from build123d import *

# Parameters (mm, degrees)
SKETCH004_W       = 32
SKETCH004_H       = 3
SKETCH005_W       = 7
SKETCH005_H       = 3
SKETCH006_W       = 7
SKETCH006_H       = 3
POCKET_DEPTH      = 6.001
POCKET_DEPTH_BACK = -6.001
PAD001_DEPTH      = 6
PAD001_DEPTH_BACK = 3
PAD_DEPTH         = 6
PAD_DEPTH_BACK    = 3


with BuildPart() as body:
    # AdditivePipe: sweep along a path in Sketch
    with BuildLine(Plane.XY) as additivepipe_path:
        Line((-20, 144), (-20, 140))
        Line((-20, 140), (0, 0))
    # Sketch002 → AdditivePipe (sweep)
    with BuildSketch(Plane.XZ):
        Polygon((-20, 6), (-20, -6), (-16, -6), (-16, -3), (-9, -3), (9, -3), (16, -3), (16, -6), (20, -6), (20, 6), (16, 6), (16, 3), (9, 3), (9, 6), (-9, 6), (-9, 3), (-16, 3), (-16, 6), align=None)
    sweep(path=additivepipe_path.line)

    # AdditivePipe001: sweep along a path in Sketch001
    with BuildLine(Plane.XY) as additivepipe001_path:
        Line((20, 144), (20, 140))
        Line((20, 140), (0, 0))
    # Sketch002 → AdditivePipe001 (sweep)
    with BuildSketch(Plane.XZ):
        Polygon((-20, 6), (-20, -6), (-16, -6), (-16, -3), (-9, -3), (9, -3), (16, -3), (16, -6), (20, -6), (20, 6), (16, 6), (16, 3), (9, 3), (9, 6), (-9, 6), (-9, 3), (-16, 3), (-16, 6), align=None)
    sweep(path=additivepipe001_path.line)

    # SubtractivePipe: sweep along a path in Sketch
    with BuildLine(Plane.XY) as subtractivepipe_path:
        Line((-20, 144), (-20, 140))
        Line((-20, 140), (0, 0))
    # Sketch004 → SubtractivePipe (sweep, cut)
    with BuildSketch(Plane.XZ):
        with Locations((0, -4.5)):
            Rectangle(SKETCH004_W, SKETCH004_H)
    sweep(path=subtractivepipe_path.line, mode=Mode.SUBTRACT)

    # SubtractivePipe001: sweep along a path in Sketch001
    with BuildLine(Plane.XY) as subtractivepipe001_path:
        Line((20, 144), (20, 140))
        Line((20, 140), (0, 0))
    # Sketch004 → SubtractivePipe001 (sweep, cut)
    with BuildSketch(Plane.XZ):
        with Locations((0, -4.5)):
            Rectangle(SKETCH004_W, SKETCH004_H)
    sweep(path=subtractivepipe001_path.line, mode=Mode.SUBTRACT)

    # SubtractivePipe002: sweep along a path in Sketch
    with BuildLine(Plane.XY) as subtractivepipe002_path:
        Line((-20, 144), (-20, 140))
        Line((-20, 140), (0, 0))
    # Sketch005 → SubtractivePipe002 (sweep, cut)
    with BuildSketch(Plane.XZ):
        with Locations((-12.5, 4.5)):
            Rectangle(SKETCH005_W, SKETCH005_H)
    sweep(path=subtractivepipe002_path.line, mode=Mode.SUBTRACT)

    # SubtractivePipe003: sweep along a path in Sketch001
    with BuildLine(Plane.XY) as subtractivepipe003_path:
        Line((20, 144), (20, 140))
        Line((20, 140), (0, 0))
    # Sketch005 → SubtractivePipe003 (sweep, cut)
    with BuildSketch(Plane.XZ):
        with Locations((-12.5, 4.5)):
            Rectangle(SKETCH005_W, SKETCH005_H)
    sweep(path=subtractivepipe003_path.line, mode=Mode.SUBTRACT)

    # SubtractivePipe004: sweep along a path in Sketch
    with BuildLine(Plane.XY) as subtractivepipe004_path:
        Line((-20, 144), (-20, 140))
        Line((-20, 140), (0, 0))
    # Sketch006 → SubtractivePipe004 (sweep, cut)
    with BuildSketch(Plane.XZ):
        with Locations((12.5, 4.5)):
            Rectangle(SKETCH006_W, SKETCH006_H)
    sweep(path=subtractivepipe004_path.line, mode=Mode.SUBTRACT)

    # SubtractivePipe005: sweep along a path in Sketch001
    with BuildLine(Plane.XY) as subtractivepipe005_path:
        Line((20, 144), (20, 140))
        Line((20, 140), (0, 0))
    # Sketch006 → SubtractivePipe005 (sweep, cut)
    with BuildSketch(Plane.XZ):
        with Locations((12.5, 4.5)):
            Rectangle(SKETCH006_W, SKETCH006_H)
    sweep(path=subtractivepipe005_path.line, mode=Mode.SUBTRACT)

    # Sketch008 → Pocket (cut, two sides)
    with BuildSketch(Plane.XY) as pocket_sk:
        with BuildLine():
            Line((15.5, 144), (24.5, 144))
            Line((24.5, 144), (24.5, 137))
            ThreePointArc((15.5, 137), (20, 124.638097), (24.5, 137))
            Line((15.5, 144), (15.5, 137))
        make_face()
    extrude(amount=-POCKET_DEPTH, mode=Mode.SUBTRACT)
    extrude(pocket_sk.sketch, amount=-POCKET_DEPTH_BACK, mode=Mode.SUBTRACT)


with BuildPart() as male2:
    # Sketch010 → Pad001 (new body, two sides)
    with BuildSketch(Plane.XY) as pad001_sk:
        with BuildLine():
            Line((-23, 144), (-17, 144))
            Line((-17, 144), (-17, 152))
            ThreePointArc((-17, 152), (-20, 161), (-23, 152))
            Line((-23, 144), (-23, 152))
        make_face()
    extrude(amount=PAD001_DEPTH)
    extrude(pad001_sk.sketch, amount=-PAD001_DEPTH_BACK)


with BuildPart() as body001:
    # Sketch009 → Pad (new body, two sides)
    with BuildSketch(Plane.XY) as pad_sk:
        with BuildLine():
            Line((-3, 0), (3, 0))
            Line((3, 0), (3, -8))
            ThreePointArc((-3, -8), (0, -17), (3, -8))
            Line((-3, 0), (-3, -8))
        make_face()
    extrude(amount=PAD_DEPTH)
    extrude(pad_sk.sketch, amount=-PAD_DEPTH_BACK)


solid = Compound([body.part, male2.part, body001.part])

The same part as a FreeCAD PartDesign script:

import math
import FreeCAD as App
import Part
import Sketcher
Q = App.Units.Quantity


def add_polygon(sketch, points):
    """Adds a closed chain of lines whose ends are joined by coincident constraints."""
    first, n = sketch.GeometryCount, len(points)
    for a, b in zip(points, points[1:] + points[:1]):
        sketch.addGeometry(Part.LineSegment(App.Vector(*a, 0), App.Vector(*b, 0)), False)
    for i in range(n):
        sketch.addConstraint(Sketcher.Constraint("Coincident", first + i, 2, first + (i + 1) % n, 1))

doc = App.newDocument("Part")
body = doc.addObject("PartDesign::Body", "Body")

sketch1 = body.newObject("Sketcher::SketchObject", "Sketch")
sketch1.AttachmentSupport = (doc.getObject("XZ_Plane"), [""])
sketch1.MapMode = "FlatFace"
add_polygon(sketch1, [(-20, 6), (-20, -6), (-16, -6), (-16, -3), (16, -3), (16, -6), (20, -6), (20, 6), (16, 6), (16, 3), (9, 3), (9, 6), (-9, 6), (-9, 3), (-16, 3), (-16, 6)])
sketch1.addConstraint(Sketcher.Constraint("Vertical", 0))
sketch1.addConstraint(Sketcher.Constraint("Horizontal", 1))
sketch1.addConstraint(Sketcher.Constraint("Vertical", 2))
sketch1.addConstraint(Sketcher.Constraint("Horizontal", 3))
sketch1.addConstraint(Sketcher.Constraint("Vertical", 4))
sketch1.addConstraint(Sketcher.Constraint("Horizontal", 5))
sketch1.addConstraint(Sketcher.Constraint("Vertical", 6))
sketch1.addConstraint(Sketcher.Constraint("Horizontal", 7))
sketch1.addConstraint(Sketcher.Constraint("Vertical", 8))
sketch1.addConstraint(Sketcher.Constraint("Horizontal", 9))
sketch1.addConstraint(Sketcher.Constraint("Vertical", 10))
sketch1.addConstraint(Sketcher.Constraint("Horizontal", 11))
sketch1.addConstraint(Sketcher.Constraint("Vertical", 12))
sketch1.addConstraint(Sketcher.Constraint("Horizontal", 13))
sketch1.addConstraint(Sketcher.Constraint("Vertical", 14))
sketch1.addConstraint(Sketcher.Constraint("Horizontal", 15))
sketch1.addConstraint(Sketcher.Constraint("Symmetric", 0, 2, 6, 2, -1, 1))
sketch1.addConstraint(Sketcher.Constraint("Symmetric", 2, 2, 8, 2, -1, 1))
sketch1.addConstraint(Sketcher.Constraint("Symmetric", 3, 2, 13, 2, -1, 1))
sketch1.addConstraint(Sketcher.Constraint("Symmetric", 1, 2, 4, 2, -2))
sketch1.addConstraint(Sketcher.Constraint("Horizontal", 7, 2, 10, 2))
sketch1.addConstraint(Sketcher.Constraint("Horizontal", 11, 2, 14, 2))
sketch1.addConstraint(Sketcher.Constraint("Equal", 9, 13))
sketch1.addConstraint(Sketcher.Constraint("DistanceX", 1, 1, 1, 2, Q("4 mm")))
sketch1.addConstraint(Sketcher.Constraint("DistanceX", 3, 1, 3, 2, Q("32 mm")))
sketch1.addConstraint(Sketcher.Constraint("DistanceX", 9, 2, 9, 1, Q("7 mm")))
sketch1.addConstraint(Sketcher.Constraint("DistanceY", 0, 2, 0, 1, Q("12 mm")))
sketch1.addConstraint(Sketcher.Constraint("DistanceY", 2, 1, 2, 2, Q("3 mm")))

sketch2 = body.newObject("Sketcher::SketchObject", "Sketch001")
sketch2.AttachmentSupport = (doc.getObject("XY_Plane"), [""])
sketch2.MapMode = "FlatFace"
sketch2.addGeometry(Part.LineSegment(App.Vector(-20, 144, 0), App.Vector(-20, 140, 0)), False)
sketch2.addGeometry(Part.LineSegment(App.Vector(-20, 140, 0), App.Vector(0, 0, 0)), False)
sketch2.addConstraint(Sketcher.Constraint("Coincident", 0, 2, 1, 1))
sketch2.addConstraint(Sketcher.Constraint("Vertical", 0))
sketch2.addConstraint(Sketcher.Constraint("Coincident", 1, 2, -1, 1))
sketch2.addConstraint(Sketcher.Constraint("DistanceY", 0, 2, 0, 1, Q("4 mm")))
sketch2.addConstraint(Sketcher.Constraint("DistanceX", 0, 1, -1, 1, Q("20 mm")))
sketch2.addConstraint(Sketcher.Constraint("DistanceY", -1, 1, 0, 1, Q("144 mm")))
doc.recompute()

additivepipe = body.newObject("PartDesign::AdditivePipe", "AdditivePipe")
additivepipe.Profile = sketch1
additivepipe.Spine = (sketch2, ["Edge1", "Edge2"])

sketch3 = body.newObject("Sketcher::SketchObject", "Sketch002")
sketch3.AttachmentSupport = (doc.getObject("XZ_Plane"), [""])
sketch3.MapMode = "FlatFace"
add_polygon(sketch3, [(-20, 6), (-20, -6), (-16, -6), (-16, -3), (16, -3), (16, -6), (20, -6), (20, 6), (16, 6), (16, 3), (9, 3), (9, 6), (-9, 6), (-9, 3), (-16, 3), (-16, 6)])
sketch3.addConstraint(Sketcher.Constraint("Vertical", 0))
sketch3.addConstraint(Sketcher.Constraint("Horizontal", 1))
sketch3.addConstraint(Sketcher.Constraint("Vertical", 2))
sketch3.addConstraint(Sketcher.Constraint("Horizontal", 3))
sketch3.addConstraint(Sketcher.Constraint("Vertical", 4))
sketch3.addConstraint(Sketcher.Constraint("Horizontal", 5))
sketch3.addConstraint(Sketcher.Constraint("Vertical", 6))
sketch3.addConstraint(Sketcher.Constraint("Horizontal", 7))
sketch3.addConstraint(Sketcher.Constraint("Vertical", 8))
sketch3.addConstraint(Sketcher.Constraint("Horizontal", 9))
sketch3.addConstraint(Sketcher.Constraint("Vertical", 10))
sketch3.addConstraint(Sketcher.Constraint("Horizontal", 11))
sketch3.addConstraint(Sketcher.Constraint("Vertical", 12))
sketch3.addConstraint(Sketcher.Constraint("Horizontal", 13))
sketch3.addConstraint(Sketcher.Constraint("Vertical", 14))
sketch3.addConstraint(Sketcher.Constraint("Horizontal", 15))
sketch3.addConstraint(Sketcher.Constraint("Symmetric", 0, 2, 6, 2, -1, 1))
sketch3.addConstraint(Sketcher.Constraint("Symmetric", 2, 2, 8, 2, -1, 1))
sketch3.addConstraint(Sketcher.Constraint("Symmetric", 3, 2, 13, 2, -1, 1))
sketch3.addConstraint(Sketcher.Constraint("Symmetric", 1, 2, 4, 2, -2))
sketch3.addConstraint(Sketcher.Constraint("Horizontal", 7, 2, 10, 2))
sketch3.addConstraint(Sketcher.Constraint("Horizontal", 11, 2, 14, 2))
sketch3.addConstraint(Sketcher.Constraint("Equal", 9, 13))
sketch3.addConstraint(Sketcher.Constraint("DistanceX", 1, 1, 1, 2, Q("4 mm")))
sketch3.addConstraint(Sketcher.Constraint("DistanceX", 3, 1, 3, 2, Q("32 mm")))
sketch3.addConstraint(Sketcher.Constraint("DistanceX", 9, 2, 9, 1, Q("7 mm")))
sketch3.addConstraint(Sketcher.Constraint("DistanceY", 0, 2, 0, 1, Q("12 mm")))
sketch3.addConstraint(Sketcher.Constraint("DistanceY", 2, 1, 2, 2, Q("3 mm")))

sketch4 = body.newObject("Sketcher::SketchObject", "Sketch003")
sketch4.AttachmentSupport = (doc.getObject("XY_Plane"), [""])
sketch4.MapMode = "FlatFace"
sketch4.addGeometry(Part.LineSegment(App.Vector(20, 144, 0), App.Vector(20, 140, 0)), False)
sketch4.addGeometry(Part.LineSegment(App.Vector(20, 140, 0), App.Vector(0, 0, 0)), False)
sketch4.addConstraint(Sketcher.Constraint("Coincident", 0, 2, 1, 1))
sketch4.addConstraint(Sketcher.Constraint("Vertical", 0))
sketch4.addConstraint(Sketcher.Constraint("Coincident", 1, 2, -1, 1))
sketch4.addConstraint(Sketcher.Constraint("DistanceY", 0, 2, 0, 1, Q("4 mm")))
sketch4.addConstraint(Sketcher.Constraint("DistanceX", -1, 1, 0, 1, Q("20 mm")))
sketch4.addConstraint(Sketcher.Constraint("DistanceY", -1, 1, 0, 1, Q("144 mm")))
doc.recompute()

additivepipe2 = body.newObject("PartDesign::AdditivePipe", "AdditivePipe001")
additivepipe2.Profile = sketch3
additivepipe2.Spine = (sketch4, ["Edge1", "Edge2"])

sketch5 = body.newObject("Sketcher::SketchObject", "Sketch004")
sketch5.AttachmentSupport = (doc.getObject("XZ_Plane"), [""])
sketch5.MapMode = "FlatFace"
add_polygon(sketch5, [(-16, -3), (-16, -6), (16, -6), (16, -3)])
sketch5.addConstraint(Sketcher.Constraint("Vertical", 0))
sketch5.addConstraint(Sketcher.Constraint("Horizontal", 1))
sketch5.addConstraint(Sketcher.Constraint("Vertical", 2))
sketch5.addConstraint(Sketcher.Constraint("Horizontal", 3))
sketch5.addConstraint(Sketcher.Constraint("DistanceX", 1, 1, 1, 2, Q("32 mm")))
sketch5.addConstraint(Sketcher.Constraint("DistanceY", 0, 2, 0, 1, Q("3 mm")))
sketch5.addConstraint(Sketcher.Constraint("DistanceX", 0, 2, -1, 1, Q("16 mm")))
sketch5.addConstraint(Sketcher.Constraint("DistanceY", 0, 2, -1, 1, Q("6 mm")))

sketch6 = body.newObject("Sketcher::SketchObject", "Sketch005")
sketch6.AttachmentSupport = (doc.getObject("XY_Plane"), [""])
sketch6.MapMode = "FlatFace"
sketch6.addGeometry(Part.LineSegment(App.Vector(-20, 144, 0), App.Vector(-20, 140, 0)), False)
sketch6.addGeometry(Part.LineSegment(App.Vector(-20, 140, 0), App.Vector(0, 0, 0)), False)
sketch6.addConstraint(Sketcher.Constraint("Coincident", 0, 2, 1, 1))
sketch6.addConstraint(Sketcher.Constraint("Vertical", 0))
sketch6.addConstraint(Sketcher.Constraint("Coincident", 1, 2, -1, 1))
sketch6.addConstraint(Sketcher.Constraint("DistanceY", 0, 2, 0, 1, Q("4 mm")))
sketch6.addConstraint(Sketcher.Constraint("DistanceX", 0, 1, -1, 1, Q("20 mm")))
sketch6.addConstraint(Sketcher.Constraint("DistanceY", -1, 1, 0, 1, Q("144 mm")))
doc.recompute()

subtractivepipe = body.newObject("PartDesign::SubtractivePipe", "SubtractivePipe")
subtractivepipe.Profile = sketch5
subtractivepipe.Spine = (sketch6, ["Edge1", "Edge2"])

sketch7 = body.newObject("Sketcher::SketchObject", "Sketch006")
sketch7.AttachmentSupport = (doc.getObject("XZ_Plane"), [""])
sketch7.MapMode = "FlatFace"
add_polygon(sketch7, [(-16, -3), (-16, -6), (16, -6), (16, -3)])
sketch7.addConstraint(Sketcher.Constraint("Vertical", 0))
sketch7.addConstraint(Sketcher.Constraint("Horizontal", 1))
sketch7.addConstraint(Sketcher.Constraint("Vertical", 2))
sketch7.addConstraint(Sketcher.Constraint("Horizontal", 3))
sketch7.addConstraint(Sketcher.Constraint("DistanceX", 1, 1, 1, 2, Q("32 mm")))
sketch7.addConstraint(Sketcher.Constraint("DistanceY", 0, 2, 0, 1, Q("3 mm")))
sketch7.addConstraint(Sketcher.Constraint("DistanceX", 0, 2, -1, 1, Q("16 mm")))
sketch7.addConstraint(Sketcher.Constraint("DistanceY", 0, 2, -1, 1, Q("6 mm")))

sketch8 = body.newObject("Sketcher::SketchObject", "Sketch007")
sketch8.AttachmentSupport = (doc.getObject("XY_Plane"), [""])
sketch8.MapMode = "FlatFace"
sketch8.addGeometry(Part.LineSegment(App.Vector(20, 144, 0), App.Vector(20, 140, 0)), False)
sketch8.addGeometry(Part.LineSegment(App.Vector(20, 140, 0), App.Vector(0, 0, 0)), False)
sketch8.addConstraint(Sketcher.Constraint("Coincident", 0, 2, 1, 1))
sketch8.addConstraint(Sketcher.Constraint("Vertical", 0))
sketch8.addConstraint(Sketcher.Constraint("Coincident", 1, 2, -1, 1))
sketch8.addConstraint(Sketcher.Constraint("DistanceY", 0, 2, 0, 1, Q("4 mm")))
sketch8.addConstraint(Sketcher.Constraint("DistanceX", -1, 1, 0, 1, Q("20 mm")))
sketch8.addConstraint(Sketcher.Constraint("DistanceY", -1, 1, 0, 1, Q("144 mm")))
doc.recompute()

subtractivepipe2 = body.newObject("PartDesign::SubtractivePipe", "SubtractivePipe001")
subtractivepipe2.Profile = sketch7
subtractivepipe2.Spine = (sketch8, ["Edge1", "Edge2"])

sketch9 = body.newObject("Sketcher::SketchObject", "Sketch008")
sketch9.AttachmentSupport = (doc.getObject("XZ_Plane"), [""])
sketch9.MapMode = "FlatFace"
add_polygon(sketch9, [(-16, 6), (-16, 3), (-9, 3), (-9, 6)])
sketch9.addConstraint(Sketcher.Constraint("Vertical", 0))
sketch9.addConstraint(Sketcher.Constraint("Horizontal", 1))
sketch9.addConstraint(Sketcher.Constraint("Vertical", 2))
sketch9.addConstraint(Sketcher.Constraint("Horizontal", 3))
sketch9.addConstraint(Sketcher.Constraint("DistanceX", 1, 1, 1, 2, Q("7 mm")))
sketch9.addConstraint(Sketcher.Constraint("DistanceY", 0, 2, 0, 1, Q("3 mm")))
sketch9.addConstraint(Sketcher.Constraint("DistanceX", 0, 2, -1, 1, Q("16 mm")))
sketch9.addConstraint(Sketcher.Constraint("DistanceY", -1, 1, 0, 2, Q("3 mm")))

sketch10 = body.newObject("Sketcher::SketchObject", "Sketch009")
sketch10.AttachmentSupport = (doc.getObject("XY_Plane"), [""])
sketch10.MapMode = "FlatFace"
sketch10.addGeometry(Part.LineSegment(App.Vector(-20, 144, 0), App.Vector(-20, 140, 0)), False)
sketch10.addGeometry(Part.LineSegment(App.Vector(-20, 140, 0), App.Vector(0, 0, 0)), False)
sketch10.addConstraint(Sketcher.Constraint("Coincident", 0, 2, 1, 1))
sketch10.addConstraint(Sketcher.Constraint("Vertical", 0))
sketch10.addConstraint(Sketcher.Constraint("Coincident", 1, 2, -1, 1))
sketch10.addConstraint(Sketcher.Constraint("DistanceY", 0, 2, 0, 1, Q("4 mm")))
sketch10.addConstraint(Sketcher.Constraint("DistanceX", 0, 1, -1, 1, Q("20 mm")))
sketch10.addConstraint(Sketcher.Constraint("DistanceY", -1, 1, 0, 1, Q("144 mm")))
doc.recompute()

subtractivepipe3 = body.newObject("PartDesign::SubtractivePipe", "SubtractivePipe002")
subtractivepipe3.Profile = sketch9
subtractivepipe3.Spine = (sketch10, ["Edge1", "Edge2"])

sketch11 = body.newObject("Sketcher::SketchObject", "Sketch010")
sketch11.AttachmentSupport = (doc.getObject("XZ_Plane"), [""])
sketch11.MapMode = "FlatFace"
add_polygon(sketch11, [(-16, 6), (-16, 3), (-9, 3), (-9, 6)])
sketch11.addConstraint(Sketcher.Constraint("Vertical", 0))
sketch11.addConstraint(Sketcher.Constraint("Horizontal", 1))
sketch11.addConstraint(Sketcher.Constraint("Vertical", 2))
sketch11.addConstraint(Sketcher.Constraint("Horizontal", 3))
sketch11.addConstraint(Sketcher.Constraint("DistanceX", 1, 1, 1, 2, Q("7 mm")))
sketch11.addConstraint(Sketcher.Constraint("DistanceY", 0, 2, 0, 1, Q("3 mm")))
sketch11.addConstraint(Sketcher.Constraint("DistanceX", 0, 2, -1, 1, Q("16 mm")))
sketch11.addConstraint(Sketcher.Constraint("DistanceY", -1, 1, 0, 2, Q("3 mm")))

sketch12 = body.newObject("Sketcher::SketchObject", "Sketch011")
sketch12.AttachmentSupport = (doc.getObject("XY_Plane"), [""])
sketch12.MapMode = "FlatFace"
sketch12.addGeometry(Part.LineSegment(App.Vector(20, 144, 0), App.Vector(20, 140, 0)), False)
sketch12.addGeometry(Part.LineSegment(App.Vector(20, 140, 0), App.Vector(0, 0, 0)), False)
sketch12.addConstraint(Sketcher.Constraint("Coincident", 0, 2, 1, 1))
sketch12.addConstraint(Sketcher.Constraint("Vertical", 0))
sketch12.addConstraint(Sketcher.Constraint("Coincident", 1, 2, -1, 1))
sketch12.addConstraint(Sketcher.Constraint("DistanceY", 0, 2, 0, 1, Q("4 mm")))
sketch12.addConstraint(Sketcher.Constraint("DistanceX", -1, 1, 0, 1, Q("20 mm")))
sketch12.addConstraint(Sketcher.Constraint("DistanceY", -1, 1, 0, 1, Q("144 mm")))
doc.recompute()

subtractivepipe4 = body.newObject("PartDesign::SubtractivePipe", "SubtractivePipe003")
subtractivepipe4.Profile = sketch11
subtractivepipe4.Spine = (sketch12, ["Edge1", "Edge2"])

sketch13 = body.newObject("Sketcher::SketchObject", "Sketch012")
sketch13.AttachmentSupport = (doc.getObject("XZ_Plane"), [""])
sketch13.MapMode = "FlatFace"
add_polygon(sketch13, [(9, 6), (9, 3), (16, 3), (16, 6)])
sketch13.addConstraint(Sketcher.Constraint("Vertical", 0))
sketch13.addConstraint(Sketcher.Constraint("Horizontal", 1))
sketch13.addConstraint(Sketcher.Constraint("Vertical", 2))
sketch13.addConstraint(Sketcher.Constraint("Horizontal", 3))
sketch13.addConstraint(Sketcher.Constraint("DistanceX", 1, 1, 1, 2, Q("7 mm")))
sketch13.addConstraint(Sketcher.Constraint("DistanceY", 0, 2, 0, 1, Q("3 mm")))
sketch13.addConstraint(Sketcher.Constraint("DistanceX", -1, 1, 0, 2, Q("9 mm")))
sketch13.addConstraint(Sketcher.Constraint("DistanceY", -1, 1, 0, 2, Q("3 mm")))

sketch14 = body.newObject("Sketcher::SketchObject", "Sketch013")
sketch14.AttachmentSupport = (doc.getObject("XY_Plane"), [""])
sketch14.MapMode = "FlatFace"
sketch14.addGeometry(Part.LineSegment(App.Vector(-20, 144, 0), App.Vector(-20, 140, 0)), False)
sketch14.addGeometry(Part.LineSegment(App.Vector(-20, 140, 0), App.Vector(0, 0, 0)), False)
sketch14.addConstraint(Sketcher.Constraint("Coincident", 0, 2, 1, 1))
sketch14.addConstraint(Sketcher.Constraint("Vertical", 0))
sketch14.addConstraint(Sketcher.Constraint("Coincident", 1, 2, -1, 1))
sketch14.addConstraint(Sketcher.Constraint("DistanceY", 0, 2, 0, 1, Q("4 mm")))
sketch14.addConstraint(Sketcher.Constraint("DistanceX", 0, 1, -1, 1, Q("20 mm")))
sketch14.addConstraint(Sketcher.Constraint("DistanceY", -1, 1, 0, 1, Q("144 mm")))
doc.recompute()

subtractivepipe5 = body.newObject("PartDesign::SubtractivePipe", "SubtractivePipe004")
subtractivepipe5.Profile = sketch13
subtractivepipe5.Spine = (sketch14, ["Edge1", "Edge2"])

sketch15 = body.newObject("Sketcher::SketchObject", "Sketch014")
sketch15.AttachmentSupport = (doc.getObject("XZ_Plane"), [""])
sketch15.MapMode = "FlatFace"
add_polygon(sketch15, [(9, 6), (9, 3), (16, 3), (16, 6)])
sketch15.addConstraint(Sketcher.Constraint("Vertical", 0))
sketch15.addConstraint(Sketcher.Constraint("Horizontal", 1))
sketch15.addConstraint(Sketcher.Constraint("Vertical", 2))
sketch15.addConstraint(Sketcher.Constraint("Horizontal", 3))
sketch15.addConstraint(Sketcher.Constraint("DistanceX", 1, 1, 1, 2, Q("7 mm")))
sketch15.addConstraint(Sketcher.Constraint("DistanceY", 0, 2, 0, 1, Q("3 mm")))
sketch15.addConstraint(Sketcher.Constraint("DistanceX", -1, 1, 0, 2, Q("9 mm")))
sketch15.addConstraint(Sketcher.Constraint("DistanceY", -1, 1, 0, 2, Q("3 mm")))

sketch16 = body.newObject("Sketcher::SketchObject", "Sketch015")
sketch16.AttachmentSupport = (doc.getObject("XY_Plane"), [""])
sketch16.MapMode = "FlatFace"
sketch16.addGeometry(Part.LineSegment(App.Vector(20, 144, 0), App.Vector(20, 140, 0)), False)
sketch16.addGeometry(Part.LineSegment(App.Vector(20, 140, 0), App.Vector(0, 0, 0)), False)
sketch16.addConstraint(Sketcher.Constraint("Coincident", 0, 2, 1, 1))
sketch16.addConstraint(Sketcher.Constraint("Vertical", 0))
sketch16.addConstraint(Sketcher.Constraint("Coincident", 1, 2, -1, 1))
sketch16.addConstraint(Sketcher.Constraint("DistanceY", 0, 2, 0, 1, Q("4 mm")))
sketch16.addConstraint(Sketcher.Constraint("DistanceX", -1, 1, 0, 1, Q("20 mm")))
sketch16.addConstraint(Sketcher.Constraint("DistanceY", -1, 1, 0, 1, Q("144 mm")))
doc.recompute()

subtractivepipe6 = body.newObject("PartDesign::SubtractivePipe", "SubtractivePipe005")
subtractivepipe6.Profile = sketch15
subtractivepipe6.Spine = (sketch16, ["Edge1", "Edge2"])

sketch17 = body.newObject("Sketcher::SketchObject", "Sketch016")
sketch17.AttachmentSupport = (doc.getObject("XY_Plane"), [""])
sketch17.MapMode = "FlatFace"
sketch17.addGeometry(Part.LineSegment(App.Vector(24, 144, 0), App.Vector(16, 144, 0)), False)
sketch17.addGeometry(Part.LineSegment(App.Vector(16, 144, 0), App.Vector(16, 137, 0)), False)
sketch17.addGeometry(Part.ArcOfCircle(Part.Circle(App.Vector(20, 132, 0), App.Vector(0, 0, 1), 7), math.radians(130), math.radians(410)), False)
sketch17.addGeometry(Part.LineSegment(App.Vector(24, 137, 0), App.Vector(24, 144, 0)), False)
sketch17.addConstraint(Sketcher.Constraint("Coincident", 0, 2, 1, 1))
sketch17.addConstraint(Sketcher.Constraint("Coincident", 1, 2, 2, 1))
sketch17.addConstraint(Sketcher.Constraint("Coincident", 2, 2, 3, 1))
sketch17.addConstraint(Sketcher.Constraint("Coincident", 3, 2, 0, 1))
sketch17.addConstraint(Sketcher.Constraint("Horizontal", 0))
sketch17.addConstraint(Sketcher.Constraint("Vertical", 1))
sketch17.addConstraint(Sketcher.Constraint("Vertical", 3))
sketch17.addConstraint(Sketcher.Constraint("Horizontal", 1, 2, 2, 2))
sketch17.addConstraint(Sketcher.Constraint("Radius", 2, Q("7 mm")))
sketch17.addConstraint(Sketcher.Constraint("DistanceX", 0, 2, 0, 1, Q("9 mm")))
sketch17.addConstraint(Sketcher.Constraint("DistanceY", 1, 2, 1, 1, Q("7 mm")))
sketch17.addConstraint(Sketcher.Constraint("DistanceX", -1, 1, 2, 3, Q("20 mm")))
sketch17.addConstraint(Sketcher.Constraint("DistanceY", -1, 1, 0, 2, Q("144 mm")))
pocket1 = body.newObject("PartDesign::Pocket", "Pocket")
pocket1.Profile = sketch17
pocket1.Type = "ThroughAll"
pocket1.Midplane = True
body2 = doc.addObject("PartDesign::Body", "Body001")

sketch18 = body2.newObject("Sketcher::SketchObject", "Sketch017")
sketch18.AttachmentSupport = (doc.getObject("XY_Plane001"), [""])
sketch18.MapMode = "FlatFace"
sketch18.addGeometry(Part.LineSegment(App.Vector(-23, 144, 0), App.Vector(-17, 144, 0)), False)
sketch18.addGeometry(Part.LineSegment(App.Vector(-17, 144, 0), App.Vector(-17, 152, 0)), False)
sketch18.addGeometry(Part.ArcOfCircle(Part.Circle(App.Vector(-20, 156, 0), App.Vector(0, 0, 1), 5), math.radians(-53), math.radians(233)), False)
sketch18.addGeometry(Part.LineSegment(App.Vector(-23, 152, 0), App.Vector(-23, 144, 0)), False)
sketch18.addConstraint(Sketcher.Constraint("Coincident", 0, 2, 1, 1))
sketch18.addConstraint(Sketcher.Constraint("Coincident", 1, 2, 2, 1))
sketch18.addConstraint(Sketcher.Constraint("Coincident", 2, 2, 3, 1))
sketch18.addConstraint(Sketcher.Constraint("Coincident", 3, 2, 0, 1))
sketch18.addConstraint(Sketcher.Constraint("Horizontal", 0))
sketch18.addConstraint(Sketcher.Constraint("Vertical", 1))
sketch18.addConstraint(Sketcher.Constraint("Vertical", 3))
sketch18.addConstraint(Sketcher.Constraint("Horizontal", 1, 2, 2, 2))
sketch18.addConstraint(Sketcher.Constraint("Radius", 2, Q("5 mm")))
sketch18.addConstraint(Sketcher.Constraint("DistanceX", 0, 1, 0, 2, Q("6 mm")))
sketch18.addConstraint(Sketcher.Constraint("DistanceY", 1, 1, 1, 2, Q("8 mm")))
sketch18.addConstraint(Sketcher.Constraint("DistanceX", 2, 3, -1, 1, Q("20 mm")))
sketch18.addConstraint(Sketcher.Constraint("DistanceY", -1, 1, 2, 3, Q("156 mm")))
pad1 = body2.newObject("PartDesign::Pad", "Pad")
pad1.Profile = sketch18
pad1.Type = "TwoLengths"
pad1.Length = 6
pad1.Length2 = 3
body3 = doc.addObject("PartDesign::Body", "Body002")

sketch19 = body3.newObject("Sketcher::SketchObject", "Sketch018")
sketch19.AttachmentSupport = (doc.getObject("XY_Plane002"), [""])
sketch19.MapMode = "FlatFace"
sketch19.addGeometry(Part.LineSegment(App.Vector(3, 0, 0), App.Vector(-3, 0, 0)), False)
sketch19.addGeometry(Part.LineSegment(App.Vector(-3, 0, 0), App.Vector(-3, -8, 0)), False)
sketch19.addGeometry(Part.ArcOfCircle(Part.Circle(App.Vector(0, -12, 0), App.Vector(0, 0, 1), 5), math.radians(127), math.radians(413)), False)
sketch19.addGeometry(Part.LineSegment(App.Vector(3, -8, 0), App.Vector(3, 0, 0)), False)
sketch19.addConstraint(Sketcher.Constraint("Coincident", 0, 2, 1, 1))
sketch19.addConstraint(Sketcher.Constraint("Coincident", 1, 2, 2, 1))
sketch19.addConstraint(Sketcher.Constraint("Coincident", 2, 2, 3, 1))
sketch19.addConstraint(Sketcher.Constraint("Coincident", 3, 2, 0, 1))
sketch19.addConstraint(Sketcher.Constraint("Horizontal", 0))
sketch19.addConstraint(Sketcher.Constraint("Vertical", 1))
sketch19.addConstraint(Sketcher.Constraint("Vertical", 3))
sketch19.addConstraint(Sketcher.Constraint("Symmetric", 0, 2, 3, 2, -1, 1))
sketch19.addConstraint(Sketcher.Constraint("PointOnObject", 2, 3, -2))
sketch19.addConstraint(Sketcher.Constraint("Radius", 2, Q("5 mm")))
sketch19.addConstraint(Sketcher.Constraint("DistanceX", 0, 2, 0, 1, Q("6 mm")))
sketch19.addConstraint(Sketcher.Constraint("DistanceY", 1, 2, 1, 1, Q("8 mm")))
pad2 = body3.newObject("PartDesign::Pad", "Pad001")
pad2.Profile = sketch19
pad2.Type = "TwoLengths"
pad2.Length = 6
pad2.Length2 = 3

doc.recompute()
